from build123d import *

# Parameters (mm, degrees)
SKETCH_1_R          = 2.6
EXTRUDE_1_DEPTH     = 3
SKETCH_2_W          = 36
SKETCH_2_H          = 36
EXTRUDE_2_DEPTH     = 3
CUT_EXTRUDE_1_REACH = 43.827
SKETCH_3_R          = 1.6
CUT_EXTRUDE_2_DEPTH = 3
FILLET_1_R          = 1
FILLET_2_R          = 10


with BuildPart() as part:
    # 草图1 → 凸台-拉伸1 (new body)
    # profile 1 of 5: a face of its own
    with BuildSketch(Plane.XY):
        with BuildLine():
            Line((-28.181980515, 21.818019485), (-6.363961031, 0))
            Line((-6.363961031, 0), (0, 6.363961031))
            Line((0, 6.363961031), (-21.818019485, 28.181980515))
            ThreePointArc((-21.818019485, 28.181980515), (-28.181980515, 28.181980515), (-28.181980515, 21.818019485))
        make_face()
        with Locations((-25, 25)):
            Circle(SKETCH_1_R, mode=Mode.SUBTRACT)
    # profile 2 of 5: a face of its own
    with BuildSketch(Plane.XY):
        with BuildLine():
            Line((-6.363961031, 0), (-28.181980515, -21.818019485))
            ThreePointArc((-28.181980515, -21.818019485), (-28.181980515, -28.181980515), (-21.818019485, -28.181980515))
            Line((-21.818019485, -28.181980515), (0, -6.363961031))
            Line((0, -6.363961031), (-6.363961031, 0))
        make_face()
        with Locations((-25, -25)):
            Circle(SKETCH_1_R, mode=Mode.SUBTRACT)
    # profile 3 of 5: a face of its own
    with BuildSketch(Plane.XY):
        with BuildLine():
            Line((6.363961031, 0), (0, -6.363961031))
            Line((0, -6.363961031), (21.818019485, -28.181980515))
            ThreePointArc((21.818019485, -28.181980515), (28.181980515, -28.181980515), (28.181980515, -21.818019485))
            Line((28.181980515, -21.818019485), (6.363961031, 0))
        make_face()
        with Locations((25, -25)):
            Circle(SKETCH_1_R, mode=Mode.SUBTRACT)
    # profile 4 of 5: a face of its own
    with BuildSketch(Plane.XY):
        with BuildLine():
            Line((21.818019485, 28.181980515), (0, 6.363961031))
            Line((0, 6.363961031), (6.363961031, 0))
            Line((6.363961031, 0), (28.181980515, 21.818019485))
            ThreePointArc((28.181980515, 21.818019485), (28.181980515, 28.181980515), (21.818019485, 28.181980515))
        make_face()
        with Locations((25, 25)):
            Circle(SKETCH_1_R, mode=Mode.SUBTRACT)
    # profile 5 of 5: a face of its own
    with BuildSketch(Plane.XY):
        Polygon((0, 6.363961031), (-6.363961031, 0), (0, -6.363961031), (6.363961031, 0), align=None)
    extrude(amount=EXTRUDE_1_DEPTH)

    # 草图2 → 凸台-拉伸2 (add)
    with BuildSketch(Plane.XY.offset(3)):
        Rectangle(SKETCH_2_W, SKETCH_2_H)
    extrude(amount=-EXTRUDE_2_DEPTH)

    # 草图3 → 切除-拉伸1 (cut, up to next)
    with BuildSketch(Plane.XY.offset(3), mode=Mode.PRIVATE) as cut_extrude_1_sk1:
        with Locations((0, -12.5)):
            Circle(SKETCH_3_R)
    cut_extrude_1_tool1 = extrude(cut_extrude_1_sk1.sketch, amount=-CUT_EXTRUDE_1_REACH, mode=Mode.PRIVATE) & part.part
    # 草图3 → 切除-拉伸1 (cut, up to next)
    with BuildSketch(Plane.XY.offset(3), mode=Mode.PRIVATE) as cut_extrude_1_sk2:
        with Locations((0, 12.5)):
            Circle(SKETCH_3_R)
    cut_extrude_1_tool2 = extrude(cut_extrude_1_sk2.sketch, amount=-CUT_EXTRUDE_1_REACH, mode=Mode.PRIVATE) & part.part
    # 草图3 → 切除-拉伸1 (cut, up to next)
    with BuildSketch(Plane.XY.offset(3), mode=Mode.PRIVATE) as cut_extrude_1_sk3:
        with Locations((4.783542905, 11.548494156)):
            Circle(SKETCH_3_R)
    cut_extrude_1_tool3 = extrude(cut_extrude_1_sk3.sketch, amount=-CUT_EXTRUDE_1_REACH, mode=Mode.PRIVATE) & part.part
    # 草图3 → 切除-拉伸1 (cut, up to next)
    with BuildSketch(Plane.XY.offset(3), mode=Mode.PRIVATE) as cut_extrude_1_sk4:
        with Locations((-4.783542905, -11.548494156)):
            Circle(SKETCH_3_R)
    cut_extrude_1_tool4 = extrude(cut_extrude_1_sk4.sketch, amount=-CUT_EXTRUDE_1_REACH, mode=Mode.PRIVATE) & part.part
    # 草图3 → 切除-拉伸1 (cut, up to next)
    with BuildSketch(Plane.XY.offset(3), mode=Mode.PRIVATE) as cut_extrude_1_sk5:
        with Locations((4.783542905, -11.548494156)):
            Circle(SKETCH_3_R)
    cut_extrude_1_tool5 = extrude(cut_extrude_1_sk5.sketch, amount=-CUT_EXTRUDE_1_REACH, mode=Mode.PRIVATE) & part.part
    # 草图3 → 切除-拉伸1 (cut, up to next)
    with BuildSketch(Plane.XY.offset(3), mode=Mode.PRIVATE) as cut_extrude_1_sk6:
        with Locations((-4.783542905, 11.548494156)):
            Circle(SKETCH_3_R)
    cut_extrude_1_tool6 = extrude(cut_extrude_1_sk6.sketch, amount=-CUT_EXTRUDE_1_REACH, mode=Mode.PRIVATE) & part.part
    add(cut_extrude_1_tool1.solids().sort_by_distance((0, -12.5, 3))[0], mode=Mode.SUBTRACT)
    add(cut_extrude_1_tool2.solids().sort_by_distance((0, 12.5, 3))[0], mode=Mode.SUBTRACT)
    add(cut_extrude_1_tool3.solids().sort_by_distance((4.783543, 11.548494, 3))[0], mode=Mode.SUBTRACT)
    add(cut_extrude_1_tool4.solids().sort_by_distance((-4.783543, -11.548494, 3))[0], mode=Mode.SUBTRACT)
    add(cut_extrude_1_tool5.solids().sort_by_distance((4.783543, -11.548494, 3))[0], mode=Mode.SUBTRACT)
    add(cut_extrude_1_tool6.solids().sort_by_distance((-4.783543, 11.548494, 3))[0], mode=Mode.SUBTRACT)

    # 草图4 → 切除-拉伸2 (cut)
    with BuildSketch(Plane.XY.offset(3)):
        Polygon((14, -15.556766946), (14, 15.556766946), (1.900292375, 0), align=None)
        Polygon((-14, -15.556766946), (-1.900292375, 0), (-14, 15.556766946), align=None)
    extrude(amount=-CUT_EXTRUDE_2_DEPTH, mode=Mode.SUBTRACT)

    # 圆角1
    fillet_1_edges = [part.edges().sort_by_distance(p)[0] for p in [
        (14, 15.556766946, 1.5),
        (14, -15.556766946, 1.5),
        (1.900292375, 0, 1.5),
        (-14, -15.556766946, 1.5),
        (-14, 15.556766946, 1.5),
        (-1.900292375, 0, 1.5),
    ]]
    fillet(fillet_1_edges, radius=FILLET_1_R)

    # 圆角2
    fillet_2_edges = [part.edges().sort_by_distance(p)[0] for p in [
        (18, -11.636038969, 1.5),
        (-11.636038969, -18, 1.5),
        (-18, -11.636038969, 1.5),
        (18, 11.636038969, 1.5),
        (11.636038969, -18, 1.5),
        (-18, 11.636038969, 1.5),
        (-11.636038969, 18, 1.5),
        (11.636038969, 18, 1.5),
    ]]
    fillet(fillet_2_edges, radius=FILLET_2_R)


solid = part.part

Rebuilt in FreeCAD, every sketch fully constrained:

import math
import FreeCAD as App
import Part
import Sketcher


def edges_at(feature, points):
    """Names of the edges that pass closest to the given points."""
    edges = feature.Shape.Edges
    near = lambda p: min(range(len(edges)), key=lambda i: edges[i].distToShape(Part.Vertex(*p))[0])
    return sorted({f"Edge{near(p) + 1}" for p in points})

doc = App.newDocument("Part")
body = doc.addObject("PartDesign::Body", "Body")

# Sketch on XY plane
sketch1 = doc.addObject("Sketcher::SketchObject", "Sketch")
body.addObject(sketch1)
sketch1.AttachmentSupport = (doc.XY_Plane, [""])
sketch1.MapMode = "FlatFace"
sketch1.addGeometry(Part.LineSegment(App.Vector(-28.181981, 21.818019, 0), App.Vector(-6.363961, 0, 0)), False)
sketch1.addGeometry(Part.LineSegment(App.Vector(-6.363961, 0, 0), App.Vector(-28.181981, -21.818019, 0)), False)
sketch1.addGeometry(Part.ArcOfCircle(Part.Circle(App.Vector(-25, -25, 0), App.Vector(0, 0, 1), 4.5), math.radians(135), math.radians(315)), False)
sketch1.addGeometry(Part.LineSegment(App.Vector(-21.818019, -28.181981, 0), App.Vector(0, -6.363961, 0)), False)
sketch1.addGeometry(Part.LineSegment(App.Vector(0, -6.363961, 0), App.Vector(21.818019, -28.181981, 0)), False)
sketch1.addGeometry(Part.ArcOfCircle(Part.Circle(App.Vector(25, -25, 0), App.Vector(0, 0, 1), 4.5), math.radians(-135), math.radians(45)), False)
sketch1.addGeometry(Part.LineSegment(App.Vector(28.181981, -21.818019, 0), App.Vector(6.363961, 0, 0)), False)
sketch1.addGeometry(Part.LineSegment(App.Vector(6.363961, 0, 0), App.Vector(28.181981, 21.818019, 0)), False)
sketch1.addGeometry(Part.ArcOfCircle(Part.Circle(App.Vector(25, 25, 0), App.Vector(0, 0, 1), 4.5), math.radians(-45), math.radians(135)), False)
sketch1.addGeometry(Part.LineSegment(App.Vector(21.818019, 28.181981, 0), App.Vector(0, 6.363961, 0)), False)
sketch1.addGeometry(Part.LineSegment(App.Vector(0, 6.363961, 0), App.Vector(-21.818019, 28.181981, 0)), False)
sketch1.addGeometry(Part.ArcOfCircle(Part.Circle(App.Vector(-25, 25, 0), App.Vector(0, 0, 1), 4.5), math.radians(45), math.radians(225)), False)
sketch1.addGeometry(Part.Circle(App.Vector(-25, 25, 0), App.Vector(0, 0, 1), 2.6), False)
sketch1.addGeometry(Part.Circle(App.Vector(25, 25, 0), App.Vector(0, 0, 1), 2.6), False)
sketch1.addGeometry(Part.Circle(App.Vector(-25, -25, 0), App.Vector(0, 0, 1), 2.6), False)
sketch1.addGeometry(Part.Circle(App.Vector(25, -25, 0), App.Vector(0, 0, 1), 2.6), False)
sketch1.addConstraint(Sketcher.Constraint("Coincident", 0, 2, 1, 1))
sketch1.addConstraint(Sketcher.Constraint("Tangent", 1, 2, 2, 1))
sketch1.addConstraint(Sketcher.Constraint("Tangent", 2, 2, 3, 1))
sketch1.addConstraint(Sketcher.Constraint("Coincident", 3, 2, 4, 1))
sketch1.addConstraint(Sketcher.Constraint("Tangent", 4, 2, 5, 1))
sketch1.addConstraint(Sketcher.Constraint("Tangent", 5, 2, 6, 1))
sketch1.addConstraint(Sketcher.Constraint("Coincident", 6, 2, 7, 1))
sketch1.addConstraint(Sketcher.Constraint("Tangent", 7, 2, 8, 1))
sketch1.addConstraint(Sketcher.Constraint("Tangent", 8, 2, 9, 1))
sketch1.addConstraint(Sketcher.Constraint("Coincident", 9, 2, 10, 1))
sketch1.addConstraint(Sketcher.Constraint("Tangent", 10, 2, 11, 1))
sketch1.addConstraint(Sketcher.Constraint("Tangent", 11, 2, 0, 1))
sketch1.addConstraint(Sketcher.Constraint("Coincident", 12, 3, 11, 3))
sketch1.addConstraint(Sketcher.Constraint("Coincident", 13, 3, 8, 3))
sketch1.addConstraint(Sketcher.Constraint("Coincident", 14, 3, 2, 3))
sketch1.addConstraint(Sketcher.Constraint("Coincident", 15, 3, 5, 3))
sketch1.addConstraint(Sketcher.Constraint("Equal", 2, 5))
sketch1.addConstraint(Sketcher.Constraint("Equal", 5, 8))
sketch1.addConstraint(Sketcher.Constraint("Equal", 8, 11))
sketch1.addConstraint(Sketcher.Constraint("Equal", 12, 13))
sketch1.addConstraint(Sketcher.Constraint("Equal", 13, 14))
sketch1.addConstraint(Sketcher.Constraint("Equal", 14, 15))
sketch1.addConstraint(Sketcher.Constraint("Symmetric", 2, 3, 8, 3, -1, 1))
sketch1.addConstraint(Sketcher.Constraint("Symmetric", 5, 3, 11, 3, -1, 1))
sketch1.addConstraint(Sketcher.Constraint("Symmetric", 0, 2, 6, 2, -1, 1))
sketch1.addConstraint(Sketcher.Constraint("Symmetric", 3, 2, 9, 2, -1, 1))
sketch1.addConstraint(Sketcher.Constraint("Symmetric", 2, 3, 5, 3, -2))
sketch1.addConstraint(Sketcher.Constraint("PointOnObject", 0, 2, -1))
sketch1.addConstraint(Sketcher.Constraint("PointOnObject", 3, 2, -2))
sketch1.addConstraint(Sketcher.Constraint("Perpendicular", 0, 1))
sketch1.addConstraint(Sketcher.Constraint("Parallel", 1, 3))
sketch1.addConstraint(Sketcher.Constraint("Equal", 1, 3))
sketch1.addConstraint(Sketcher.Constraint("Diameter", 12, 5.2))
sketch1.addConstraint(Sketcher.Constraint("Radius", 2, 4.5))
sketch1.addConstraint(Sketcher.Constraint("DistanceX", 2, 3, -1, 1, 25.0))
pad1 = doc.addObject("PartDesign::Pad", "Pad")
body.addObject(pad1)
pad1.Profile = sketch1
pad1.Length = 3

# Sketch on XY plane
sketch2 = doc.addObject("Sketcher::SketchObject", "Sketch001")
body.addObject(sketch2)
sketch2.AttachmentSupport = (doc.XY_Plane, [""])
sketch2.MapMode = "FlatFace"
sketch2.AttachmentOffset = App.Placement(App.Vector(0, 0, 3), App.Rotation())
sketch2.addGeometry(Part.LineSegment(App.Vector(-18, 18, 0), App.Vector(-18, -18, 0)), False)
sketch2.addGeometry(Part.LineSegment(App.Vector(-18, -18, 0), App.Vector(18, -18, 0)), False)
sketch2.addGeometry(Part.LineSegment(App.Vector(18, -18, 0), App.Vector(18, 18, 0)), False)
sketch2.addGeometry(Part.LineSegment(App.Vector(18, 18, 0), App.Vector(-18, 18, 0)), False)
sketch2.addConstraint(Sketcher.Constraint("Coincident", 0, 2, 1, 1))
sketch2.addConstraint(Sketcher.Constraint("Coincident", 1, 2, 2, 1))
sketch2.addConstraint(Sketcher.Constraint("Coincident", 2, 2, 3, 1))
sketch2.addConstraint(Sketcher.Constraint("Coincident", 3, 2, 0, 1))
sketch2.addConstraint(Sketcher.Constraint("Vertical", 0))
sketch2.addConstraint(Sketcher.Constraint("Horizontal", 1))
sketch2.addConstraint(Sketcher.Constraint("Vertical", 2))
sketch2.addConstraint(Sketcher.Constraint("Horizontal", 3))
sketch2.addConstraint(Sketcher.Constraint("Symmetric", 0, 2, 2, 2, -1, 1))
sketch2.addConstraint(Sketcher.Constraint("Equal", 3, 0))
sketch2.addConstraint(Sketcher.Constraint("DistanceX", 1, 1, 1, 2, 36.0))
pad2 = doc.addObject("PartDesign::Pad", "Pad001")
body.addObject(pad2)
pad2.Profile = sketch2
pad2.Length = 3
pad2.Reversed = True

# Sketch on XY plane
sketch3 = doc.addObject("Sketcher::SketchObject", "Sketch002")
body.addObject(sketch3)
sketch3.AttachmentSupport = (doc.XY_Plane, [""])
sketch3.MapMode = "FlatFace"
sketch3.AttachmentOffset = App.Placement(App.Vector(0, 0, 3), App.Rotation())
sketch3.addGeometry(Part.Circle(App.Vector(0, -12.5, 0), App.Vector(0, 0, 1), 1.6), False)
sketch3.addConstraint(Sketcher.Constraint("PointOnObject", 0, 3, -2))
sketch3.addConstraint(Sketcher.Constraint("Diameter", 0, 3.2))
sketch3.addConstraint(Sketcher.Constraint("DistanceY", 0, 3, -1, 1, 12.5))
pocket1 = doc.addObject("PartDesign::Pocket", "Pocket")
body.addObject(pocket1)
pocket1.Profile = sketch3
pocket1.Type = "UpToFirst"

# Sketch on XY plane
sketch4 = doc.addObject("Sketcher::SketchObject", "Sketch003")
body.addObject(sketch4)
sketch4.AttachmentSupport = (doc.XY_Plane, [""])
sketch4.MapMode = "FlatFace"
sketch4.AttachmentOffset = App.Placement(App.Vector(0, 0, 3), App.Rotation())
sketch4.addGeometry(Part.Circle(App.Vector(0, 12.5, 0), App.Vector(0, 0, 1), 1.6), False)
sketch4.addConstraint(Sketcher.Constraint("PointOnObject", 0, 3, -2))
sketch4.addConstraint(Sketcher.Constraint("Diameter", 0, 3.2))
sketch4.addConstraint(Sketcher.Constraint("DistanceY", -1, 1, 0, 3, 12.5))
pocket2 = doc.addObject("PartDesign::Pocket", "Pocket001")
body.addObject(pocket2)
pocket2.Profile = sketch4
pocket2.Type = "UpToFirst"

# Sketch on XY plane
sketch5 = doc.addObject("Sketcher::SketchObject", "Sketch004")
body.addObject(sketch5)
sketch5.AttachmentSupport = (doc.XY_Plane, [""])
sketch5.MapMode = "FlatFace"
sketch5.AttachmentOffset = App.Placement(App.Vector(0, 0, 3), App.Rotation())
sketch5.addGeometry(Part.Circle(App.Vector(4.783543, 11.548494, 0), App.Vector(0, 0, 1), 1.6), False)
sketch5.addConstraint(Sketcher.Constraint("Diameter", 0, 3.2))
sketch5.addConstraint(Sketcher.Constraint("DistanceX", -1, 1, 0, 3, 4.783543))
sketch5.addConstraint(Sketcher.Constraint("DistanceY", -1, 1, 0, 3, 11.548494))
pocket3 = doc.addObject("PartDesign::Pocket", "Pocket002")
body.addObject(pocket3)
pocket3.Profile = sketch5
pocket3.Type = "UpToFirst"

# Sketch on XY plane
sketch6 = doc.addObject("Sketcher::SketchObject", "Sketch005")
body.addObject(sketch6)
sketch6.AttachmentSupport = (doc.XY_Plane, [""])
sketch6.MapMode = "FlatFace"
sketch6.AttachmentOffset = App.Placement(App.Vector(0, 0, 3), App.Rotation())
sketch6.addGeometry(Part.Circle(App.Vector(-4.783543, -11.548494, 0), App.Vector(0, 0, 1), 1.6), False)
sketch6.addConstraint(Sketcher.Constraint("Diameter", 0, 3.2))
sketch6.addConstraint(Sketcher.Constraint("DistanceX", 0, 3, -1, 1, 4.783543))
sketch6.addConstraint(Sketcher.Constraint("DistanceY", 0, 3, -1, 1, 11.548494))
pocket4 = doc.addObject("PartDesign::Pocket", "Pocket003")
body.addObject(pocket4)
pocket4.Profile = sketch6
pocket4.Type = "UpToFirst"

# Sketch on XY plane
sketch7 = doc.addObject("Sketcher::SketchObject", "Sketch006")
body.addObject(sketch7)
sketch7.AttachmentSupport = (doc.XY_Plane, [""])
sketch7.MapMode = "FlatFace"
sketch7.AttachmentOffset = App.Placement(App.Vector(0, 0, 3), App.Rotation())
sketch7.addGeometry(Part.Circle(App.Vector(4.783543, -11.548494, 0), App.Vector(0, 0, 1), 1.6), False)
sketch7.addConstraint(Sketcher.Constraint("Diameter", 0, 3.2))
sketch7.addConstraint(Sketcher.Constraint("DistanceX", -1, 1, 0, 3, 4.783543))
sketch7.addConstraint(Sketcher.Constraint("DistanceY", 0, 3, -1, 1, 11.548494))
pocket5 = doc.addObject("PartDesign::Pocket", "Pocket004")
body.addObject(pocket5)
pocket5.Profile = sketch7
pocket5.Type = "UpToFirst"

# Sketch on XY plane
sketch8 = doc.addObject("Sketcher::SketchObject", "Sketch007")
body.addObject(sketch8)
sketch8.AttachmentSupport = (doc.XY_Plane, [""])
sketch8.MapMode = "FlatFace"
sketch8.AttachmentOffset = App.Placement(App.Vector(0, 0, 3), App.Rotation())
sketch8.addGeometry(Part.Circle(App.Vector(-4.783543, 11.548494, 0), App.Vector(0, 0, 1), 1.6), False)
sketch8.addConstraint(Sketcher.Constraint("Diameter", 0, 3.2))
sketch8.addConstraint(Sketcher.Constraint("DistanceX", 0, 3, -1, 1, 4.783543))
sketch8.addConstraint(Sketcher.Constraint("DistanceY", -1, 1, 0, 3, 11.548494))
pocket6 = doc.addObject("PartDesign::Pocket", "Pocket005")
body.addObject(pocket6)
pocket6.Profile = sketch8
pocket6.Type = "UpToFirst"

# Sketch on XY plane
sketch9 = doc.addObject("Sketcher::SketchObject", "Sketch008")
body.addObject(sketch9)
sketch9.AttachmentSupport = (doc.XY_Plane, [""])
sketch9.MapMode = "FlatFace"
sketch9.AttachmentOffset = App.Placement(App.Vector(0, 0, 3), App.Rotation())
sketch9.addGeometry(Part.LineSegment(App.Vector(14, -15.556767, 0), App.Vector(14, 15.556767, 0)), False)
sketch9.addGeometry(Part.LineSegment(App.Vector(14, 15.556767, 0), App.Vector(1.900292, 0, 0)), False)
sketch9.addGeometry(Part.LineSegment(App.Vector(1.900292, 0, 0), App.Vector(14, -15.556767, 0)), False)
sketch9.addGeometry(Part.LineSegment(App.Vector(-14, -15.556767, 0), App.Vector(-1.900292, 0, 0)), False)
sketch9.addGeometry(Part.LineSegment(App.Vector(-1.900292, 0, 0), App.Vector(-14, 15.556767, 0)), False)
sketch9.addGeometry(Part.LineSegment(App.Vector(-14, 15.556767, 0), App.Vector(-14, -15.556767, 0)), False)
sketch9.addConstraint(Sketcher.Constraint("Coincident", 0, 2, 1, 1))
sketch9.addConstraint(Sketcher.Constraint("Coincident", 1, 2, 2, 1))
sketch9.addConstraint(Sketcher.Constraint("Coincident", 2, 2, 0, 1))
sketch9.addConstraint(Sketcher.Constraint("Coincident", 3, 2, 4, 1))
sketch9.addConstraint(Sketcher.Constraint("Coincident", 4, 2, 5, 1))
sketch9.addConstraint(Sketcher.Constraint("Coincident", 5, 2, 3, 1))
sketch9.addConstraint(Sketcher.Constraint("Vertical", 0))
sketch9.addConstraint(Sketcher.Constraint("Vertical", 5))
sketch9.addConstraint(Sketcher.Constraint("Symmetric", 1, 2, 3, 2, -1, 1))
sketch9.addConstraint(Sketcher.Constraint("Symmetric", 2, 2, 4, 2, -1, 1))
sketch9.addConstraint(Sketcher.Constraint("PointOnObject", 1, 2, -1))
sketch9.addConstraint(Sketcher.Constraint("Parallel", 1, 3))
sketch9.addConstraint(Sketcher.Constraint("Horizontal", 0, 2, 4, 2))
sketch9.addConstraint(Sketcher.Constraint("DistanceX", -1, 1, 0, 2, 14.0))
sketch9.addConstraint(Sketcher.Constraint("Distance", 1, 19.70827))
sketch9.addConstraint(Sketcher.Constraint("DistanceY", 0, 1, 0, 2, 31.113534))
pocket7 = doc.addObject("PartDesign::Pocket", "Pocket006")
body.addObject(pocket7)
pocket7.Profile = sketch9
pocket7.Length = 3
doc.recompute()

fillet = doc.addObject("PartDesign::Fillet", "Fillet")
body.addObject(fillet)
fillet.Base = (pocket7, edges_at(pocket7, [
    (14, 15.557, 1.5),
    (14, -15.557, 1.5),
    (1.9, 0, 1.5),
    (-14, -15.557, 1.5),
    (-14, 15.557, 1.5),
    (-1.9, 0, 1.5),
]))
fillet.Radius = 1
doc.recompute()

fillet2 = doc.addObject("PartDesign::Fillet", "Fillet001")
body.addObject(fillet2)
fillet2.Base = (fillet, edges_at(fillet, [
    (18, -11.636, 1.5),
    (-11.636, -18, 1.5),
    (-18, -11.636, 1.5),
    (18, 11.636, 1.5),
    (11.636, -18, 1.5),
    (-18, 11.636, 1.5),
    (-11.636, 18, 1.5),
    (11.636, 18, 1.5),
]))
fillet2.Radius = 10

doc.recompute()
